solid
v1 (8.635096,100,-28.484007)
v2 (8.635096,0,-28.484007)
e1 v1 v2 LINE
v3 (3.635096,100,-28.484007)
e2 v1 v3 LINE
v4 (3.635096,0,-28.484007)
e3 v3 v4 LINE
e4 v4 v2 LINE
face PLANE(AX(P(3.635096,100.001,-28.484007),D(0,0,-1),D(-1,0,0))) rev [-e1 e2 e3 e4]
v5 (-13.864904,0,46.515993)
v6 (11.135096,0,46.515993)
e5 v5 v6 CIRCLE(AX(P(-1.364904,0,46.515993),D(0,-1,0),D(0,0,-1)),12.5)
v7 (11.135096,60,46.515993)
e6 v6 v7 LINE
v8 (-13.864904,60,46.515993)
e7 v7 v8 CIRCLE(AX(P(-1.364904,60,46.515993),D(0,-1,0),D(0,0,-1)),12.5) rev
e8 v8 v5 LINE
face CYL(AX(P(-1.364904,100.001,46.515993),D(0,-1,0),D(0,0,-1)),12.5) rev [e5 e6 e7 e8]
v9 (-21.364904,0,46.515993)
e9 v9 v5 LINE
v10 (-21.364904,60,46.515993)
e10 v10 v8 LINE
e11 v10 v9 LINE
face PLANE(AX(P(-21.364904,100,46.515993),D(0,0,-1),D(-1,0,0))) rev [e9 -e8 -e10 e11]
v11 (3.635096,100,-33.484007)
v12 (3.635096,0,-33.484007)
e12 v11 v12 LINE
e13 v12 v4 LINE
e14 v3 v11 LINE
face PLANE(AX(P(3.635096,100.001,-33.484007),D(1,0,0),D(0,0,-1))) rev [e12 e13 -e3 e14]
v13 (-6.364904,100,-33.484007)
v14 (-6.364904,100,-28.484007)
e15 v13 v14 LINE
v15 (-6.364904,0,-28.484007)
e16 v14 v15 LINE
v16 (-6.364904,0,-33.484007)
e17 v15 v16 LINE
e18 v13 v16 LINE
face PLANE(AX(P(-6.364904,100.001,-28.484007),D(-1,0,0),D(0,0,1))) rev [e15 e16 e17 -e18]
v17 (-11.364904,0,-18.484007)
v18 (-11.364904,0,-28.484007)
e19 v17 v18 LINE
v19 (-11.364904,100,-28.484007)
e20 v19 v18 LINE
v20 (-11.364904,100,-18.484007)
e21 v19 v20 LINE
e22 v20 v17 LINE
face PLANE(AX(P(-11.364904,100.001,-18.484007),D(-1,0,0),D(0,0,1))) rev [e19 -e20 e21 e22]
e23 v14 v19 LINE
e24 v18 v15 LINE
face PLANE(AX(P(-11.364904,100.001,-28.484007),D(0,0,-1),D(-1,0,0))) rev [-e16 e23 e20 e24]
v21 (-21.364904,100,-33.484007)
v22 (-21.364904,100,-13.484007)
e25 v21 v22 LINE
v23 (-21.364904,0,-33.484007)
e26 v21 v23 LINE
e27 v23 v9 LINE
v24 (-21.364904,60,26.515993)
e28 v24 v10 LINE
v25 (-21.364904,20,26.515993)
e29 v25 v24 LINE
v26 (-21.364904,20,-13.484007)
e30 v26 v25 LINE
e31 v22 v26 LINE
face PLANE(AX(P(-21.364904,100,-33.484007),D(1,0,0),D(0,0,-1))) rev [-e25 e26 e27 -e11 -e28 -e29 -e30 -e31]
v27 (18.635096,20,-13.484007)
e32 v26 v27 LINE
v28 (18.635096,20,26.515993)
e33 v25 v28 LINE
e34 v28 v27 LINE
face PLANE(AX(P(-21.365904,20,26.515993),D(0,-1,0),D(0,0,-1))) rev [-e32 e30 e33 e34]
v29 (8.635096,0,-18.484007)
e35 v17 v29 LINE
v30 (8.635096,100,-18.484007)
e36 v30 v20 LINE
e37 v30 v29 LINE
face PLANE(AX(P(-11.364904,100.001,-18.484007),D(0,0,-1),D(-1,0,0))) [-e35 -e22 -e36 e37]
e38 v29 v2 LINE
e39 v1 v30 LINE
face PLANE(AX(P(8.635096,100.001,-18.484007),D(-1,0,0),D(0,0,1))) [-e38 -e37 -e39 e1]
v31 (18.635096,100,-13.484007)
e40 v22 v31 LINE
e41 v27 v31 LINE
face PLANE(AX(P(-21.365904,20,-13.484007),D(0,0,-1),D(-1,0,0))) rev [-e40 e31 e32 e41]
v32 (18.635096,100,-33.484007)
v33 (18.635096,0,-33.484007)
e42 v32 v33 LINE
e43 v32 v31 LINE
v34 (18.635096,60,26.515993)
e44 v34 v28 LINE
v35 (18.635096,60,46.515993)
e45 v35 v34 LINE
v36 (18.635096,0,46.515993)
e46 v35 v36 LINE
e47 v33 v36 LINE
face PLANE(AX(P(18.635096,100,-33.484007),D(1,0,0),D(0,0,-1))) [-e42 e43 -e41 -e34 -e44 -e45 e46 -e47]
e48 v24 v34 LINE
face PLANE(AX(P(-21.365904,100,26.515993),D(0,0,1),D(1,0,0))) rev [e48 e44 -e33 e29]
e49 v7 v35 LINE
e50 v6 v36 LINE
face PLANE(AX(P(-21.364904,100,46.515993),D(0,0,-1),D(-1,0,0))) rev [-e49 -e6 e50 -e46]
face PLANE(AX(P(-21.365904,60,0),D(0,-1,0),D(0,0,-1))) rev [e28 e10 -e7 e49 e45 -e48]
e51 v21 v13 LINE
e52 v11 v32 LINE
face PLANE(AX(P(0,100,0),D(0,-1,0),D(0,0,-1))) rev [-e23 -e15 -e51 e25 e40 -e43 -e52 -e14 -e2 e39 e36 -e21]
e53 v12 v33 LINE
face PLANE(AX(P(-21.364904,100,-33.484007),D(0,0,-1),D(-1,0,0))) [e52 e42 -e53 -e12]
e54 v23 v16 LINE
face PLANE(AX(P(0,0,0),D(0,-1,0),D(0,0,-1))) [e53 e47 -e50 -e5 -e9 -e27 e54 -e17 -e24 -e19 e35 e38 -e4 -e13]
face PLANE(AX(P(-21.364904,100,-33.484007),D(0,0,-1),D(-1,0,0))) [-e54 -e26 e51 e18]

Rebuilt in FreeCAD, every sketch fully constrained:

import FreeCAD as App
import Part
import Sketcher
from FreeCAD import Vector
Q = App.Units.Quantity


def add_polygon(sketch, points):
    """Adds a closed chain of lines whose ends are joined by coincident constraints."""
    first, n = sketch.GeometryCount, len(points)
    for a, b in zip(points, points[1:] + points[:1]):
        sketch.addGeometry(Part.LineSegment(App.Vector(*a, 0), App.Vector(*b, 0)), False)
    for i in range(n):
        sketch.addConstraint(Sketcher.Constraint("Coincident", first + i, 2, first + (i + 1) % n, 1))

doc = App.newDocument("Part")
params = doc.addObject("Spreadsheet::Sheet", "Params")
for row, (alias, value) in enumerate([
    ("sketch1_width", "40 mm"),
    ("sketch1_height", "80 mm"),
    ("pad1_length", "100 mm"),
    ("sketch2_width", "80 mm"),
    ("sketch2_height", "40 mm"),
    ("sketch3_width", "40 mm"),
    ("sketch3_height", "20 mm"),
    ("sketch4_diameter", "25 mm"),
    ("sketch5_width", "20 mm"),
    ("sketch5_width2", "5 mm"),
], start=1):
    params.set(f"A{row}", alias)
    params.set(f"B{row}", "=" + value)
    params.setAlias(f"B{row}", alias)

body = doc.addObject("PartDesign::Body", "Body")

# Sketch on XZ plane
sketch1 = doc.addObject("Sketcher::SketchObject", "Sketch")
body.addObject(sketch1)
sketch1.AttachmentSupport = (doc.XZ_Plane, [""])
sketch1.MapMode = "FlatFace"
add_polygon(sketch1, [(-21, -33), (-21, 47), (19, 47), (19, -33)])  # lines 0-3
sketch1.addConstraint(Sketcher.Constraint("Vertical", 0))
sketch1.addConstraint(Sketcher.Constraint("Horizontal", 1))
sketch1.addConstraint(Sketcher.Constraint("Vertical", 2))
sketch1.addConstraint(Sketcher.Constraint("Horizontal", 3))
sketch1.addConstraint(Sketcher.Constraint("DistanceX", 1, 1, 1, 2, Q("40 mm")))
sketch1.addConstraint(Sketcher.Constraint("DistanceY", 0, 1, 0, 2, Q("80 mm")))
sketch1.addConstraint(Sketcher.Constraint("DistanceX", 0, 2, -1, 1, Q("21.364904 mm")))
sketch1.addConstraint(Sketcher.Constraint("DistanceY", -1, 1, 0, 2, Q("46.515993 mm")))
sketch1.setExpression("Constraints[8]", "Params.sketch1_width")
sketch1.setExpression("Constraints[9]", "Params.sketch1_height")
pad1 = doc.addObject("PartDesign::Pad", "Pad")
body.addObject(pad1)
pad1.Profile = sketch1
pad1.setExpression("Length", "Params.pad1_length")
pad1.Reversed = True

# Sketch on YZ plane
sketch2 = doc.addObject("Sketcher::SketchObject", "Sketch001")
body.addObject(sketch2)
sketch2.AttachmentSupport = (doc.YZ_Plane, [""])
sketch2.MapMode = "FlatFace"
sketch2.AttachmentOffset = App.Placement(Vector(0, 0, 18.635096), App.Rotation())
add_polygon(sketch2, [(100, 27), (20, 27), (20, -13), (100, -13)])  # lines 0-3
sketch2.addConstraint(Sketcher.Constraint("Horizontal", 0))
sketch2.addConstraint(Sketcher.Constraint("Vertical", 1))
sketch2.addConstraint(Sketcher.Constraint("Horizontal", 2))
sketch2.addConstraint(Sketcher.Constraint("Vertical", 3))
sketch2.addConstraint(Sketcher.Constraint("DistanceX", 0, 2, 0, 1, Q("80 mm")))
sketch2.addConstraint(Sketcher.Constraint("DistanceY", 1, 2, 1, 1, Q("40 mm")))
sketch2.addConstraint(Sketcher.Constraint("DistanceX", -1, 1, 0, 2, Q("20 mm")))
sketch2.addConstraint(Sketcher.Constraint("DistanceY", -1, 1, 0, 2, Q("26.515993 mm")))
sketch2.setExpression("Constraints[8]", "Params.sketch2_width")
sketch2.setExpression("Constraints[9]", "Params.sketch2_height")
pocket1 = doc.addObject("PartDesign::Pocket", "Pocket")
body.addObject(pocket1)
pocket1.Profile = sketch2
pocket1.Type = "UpToFirst"

# Sketch on YZ plane
sketch3 = doc.addObject("Sketcher::SketchObject", "Sketch002")
body.addObject(sketch3)
sketch3.AttachmentSupport = (doc.YZ_Plane, [""])
sketch3.MapMode = "FlatFace"
sketch3.AttachmentOffset = App.Placement(Vector(0, 0, 18.635096), App.Rotation())
add_polygon(sketch3, [(100, 47), (60, 47), (60, 27), (100, 27)])  # lines 0-3
sketch3.addConstraint(Sketcher.Constraint("Horizontal", 0))
sketch3.addConstraint(Sketcher.Constraint("Vertical", 1))
sketch3.addConstraint(Sketcher.Constraint("Horizontal", 2))
sketch3.addConstraint(Sketcher.Constraint("Vertical", 3))
sketch3.addConstraint(Sketcher.Constraint("DistanceX", 0, 2, 0, 1, Q("40 mm")))
sketch3.addConstraint(Sketcher.Constraint("DistanceY", 1, 2, 1, 1, Q("20 mm")))
sketch3.addConstraint(Sketcher.Constraint("DistanceX", -1, 1, 0, 2, Q("60 mm")))
sketch3.addConstraint(Sketcher.Constraint("DistanceY", -1, 1, 0, 2, Q("46.515993 mm")))
sketch3.setExpression("Constraints[8]", "Params.sketch3_width")
sketch3.setExpression("Constraints[9]", "Params.sketch3_height")
pocket2 = doc.addObject("PartDesign::Pocket", "Pocket001")
body.addObject(pocket2)
pocket2.Profile = sketch3
pocket2.Type = "UpToFirst"

# Sketch on XZ plane
sketch4 = doc.addObject("Sketcher::SketchObject", "Sketch003")
body.addObject(sketch4)
sketch4.AttachmentSupport = (doc.XZ_Plane, [""])
sketch4.MapMode = "FlatFace"
sketch4.addGeometry(Part.Circle(Vector(-1, 47, 0), Vector(0, 0, 1), 12), False)
sketch4.addConstraint(Sketcher.Constraint("Diameter", 0, Q("25 mm")))
sketch4.addConstraint(Sketcher.Constraint("DistanceX", 0, 3, -1, 1, Q("1.364904 mm")))
sketch4.addConstraint(Sketcher.Constraint("DistanceY", -1, 1, 0, 3, Q("46.515993 mm")))
sketch4.setExpression("Constraints[0]", "Params.sketch4_diameter")
pocket3 = doc.addObject("PartDesign::Pocket", "Pocket002")
body.addObject(pocket3)
pocket3.Profile = sketch4
pocket3.Type = "UpToFirst"

# Sketch on XZ plane
sketch5 = doc.addObject("Sketcher::SketchObject", "Sketch004")
body.addObject(sketch5)
sketch5.AttachmentSupport = (doc.XZ_Plane, [""])
sketch5.MapMode = "FlatFace"
add_polygon(sketch5, [(8.6, -18.5), (-11.4, -18.5), (-11.4, -28.5), (-6.4, -28.5), (-6.4, -33.5), (3.6, -33.5), (3.6, -28.5), (8.6, -28.5)])  # lines 0-7
sketch5.addConstraint(Sketcher.Constraint("Horizontal", 0))
sketch5.addConstraint(Sketcher.Constraint("Vertical", 1))
sketch5.addConstraint(Sketcher.Constraint("Horizontal", 2))
sketch5.addConstraint(Sketcher.Constraint("Vertical", 3))
sketch5.addConstraint(Sketcher.Constraint("Horizontal", 4))
sketch5.addConstraint(Sketcher.Constraint("Vertical", 5))
sketch5.addConstraint(Sketcher.Constraint("Horizontal", 6))
sketch5.addConstraint(Sketcher.Constraint("Vertical", 7))
sketch5.addConstraint(Sketcher.Constraint("Horizontal", 2, 2, 5, 2))
sketch5.addConstraint(Sketcher.Constraint("Equal", 2, 6))
sketch5.addConstraint(Sketcher.Constraint("Equal", 4, 1))
sketch5.addConstraint(Sketcher.Constraint("Equal", 6, 3))
sketch5.addConstraint(Sketcher.Constraint("DistanceX", 0, 2, 0, 1, Q("20 mm")))
sketch5.addConstraint(Sketcher.Constraint("DistanceX", 2, 1, 2, 2, Q("5 mm")))
sketch5.addConstraint(Sketcher.Constraint("DistanceX", 0, 2, -1, 1, Q("11.364904 mm")))
sketch5.addConstraint(Sketcher.Constraint("DistanceY", 0, 2, -1, 1, Q("18.484007 mm")))
sketch5.setExpression("Constraints[20]", "Params.sketch5_width")
sketch5.setExpression("Constraints[21]", "Params.sketch5_width2")
pocket4 = doc.addObject("PartDesign::Pocket", "Pocket003")
body.addObject(pocket4)
pocket4.Profile = sketch5
pocket4.Type = "UpToFirst"

doc.recompute()
